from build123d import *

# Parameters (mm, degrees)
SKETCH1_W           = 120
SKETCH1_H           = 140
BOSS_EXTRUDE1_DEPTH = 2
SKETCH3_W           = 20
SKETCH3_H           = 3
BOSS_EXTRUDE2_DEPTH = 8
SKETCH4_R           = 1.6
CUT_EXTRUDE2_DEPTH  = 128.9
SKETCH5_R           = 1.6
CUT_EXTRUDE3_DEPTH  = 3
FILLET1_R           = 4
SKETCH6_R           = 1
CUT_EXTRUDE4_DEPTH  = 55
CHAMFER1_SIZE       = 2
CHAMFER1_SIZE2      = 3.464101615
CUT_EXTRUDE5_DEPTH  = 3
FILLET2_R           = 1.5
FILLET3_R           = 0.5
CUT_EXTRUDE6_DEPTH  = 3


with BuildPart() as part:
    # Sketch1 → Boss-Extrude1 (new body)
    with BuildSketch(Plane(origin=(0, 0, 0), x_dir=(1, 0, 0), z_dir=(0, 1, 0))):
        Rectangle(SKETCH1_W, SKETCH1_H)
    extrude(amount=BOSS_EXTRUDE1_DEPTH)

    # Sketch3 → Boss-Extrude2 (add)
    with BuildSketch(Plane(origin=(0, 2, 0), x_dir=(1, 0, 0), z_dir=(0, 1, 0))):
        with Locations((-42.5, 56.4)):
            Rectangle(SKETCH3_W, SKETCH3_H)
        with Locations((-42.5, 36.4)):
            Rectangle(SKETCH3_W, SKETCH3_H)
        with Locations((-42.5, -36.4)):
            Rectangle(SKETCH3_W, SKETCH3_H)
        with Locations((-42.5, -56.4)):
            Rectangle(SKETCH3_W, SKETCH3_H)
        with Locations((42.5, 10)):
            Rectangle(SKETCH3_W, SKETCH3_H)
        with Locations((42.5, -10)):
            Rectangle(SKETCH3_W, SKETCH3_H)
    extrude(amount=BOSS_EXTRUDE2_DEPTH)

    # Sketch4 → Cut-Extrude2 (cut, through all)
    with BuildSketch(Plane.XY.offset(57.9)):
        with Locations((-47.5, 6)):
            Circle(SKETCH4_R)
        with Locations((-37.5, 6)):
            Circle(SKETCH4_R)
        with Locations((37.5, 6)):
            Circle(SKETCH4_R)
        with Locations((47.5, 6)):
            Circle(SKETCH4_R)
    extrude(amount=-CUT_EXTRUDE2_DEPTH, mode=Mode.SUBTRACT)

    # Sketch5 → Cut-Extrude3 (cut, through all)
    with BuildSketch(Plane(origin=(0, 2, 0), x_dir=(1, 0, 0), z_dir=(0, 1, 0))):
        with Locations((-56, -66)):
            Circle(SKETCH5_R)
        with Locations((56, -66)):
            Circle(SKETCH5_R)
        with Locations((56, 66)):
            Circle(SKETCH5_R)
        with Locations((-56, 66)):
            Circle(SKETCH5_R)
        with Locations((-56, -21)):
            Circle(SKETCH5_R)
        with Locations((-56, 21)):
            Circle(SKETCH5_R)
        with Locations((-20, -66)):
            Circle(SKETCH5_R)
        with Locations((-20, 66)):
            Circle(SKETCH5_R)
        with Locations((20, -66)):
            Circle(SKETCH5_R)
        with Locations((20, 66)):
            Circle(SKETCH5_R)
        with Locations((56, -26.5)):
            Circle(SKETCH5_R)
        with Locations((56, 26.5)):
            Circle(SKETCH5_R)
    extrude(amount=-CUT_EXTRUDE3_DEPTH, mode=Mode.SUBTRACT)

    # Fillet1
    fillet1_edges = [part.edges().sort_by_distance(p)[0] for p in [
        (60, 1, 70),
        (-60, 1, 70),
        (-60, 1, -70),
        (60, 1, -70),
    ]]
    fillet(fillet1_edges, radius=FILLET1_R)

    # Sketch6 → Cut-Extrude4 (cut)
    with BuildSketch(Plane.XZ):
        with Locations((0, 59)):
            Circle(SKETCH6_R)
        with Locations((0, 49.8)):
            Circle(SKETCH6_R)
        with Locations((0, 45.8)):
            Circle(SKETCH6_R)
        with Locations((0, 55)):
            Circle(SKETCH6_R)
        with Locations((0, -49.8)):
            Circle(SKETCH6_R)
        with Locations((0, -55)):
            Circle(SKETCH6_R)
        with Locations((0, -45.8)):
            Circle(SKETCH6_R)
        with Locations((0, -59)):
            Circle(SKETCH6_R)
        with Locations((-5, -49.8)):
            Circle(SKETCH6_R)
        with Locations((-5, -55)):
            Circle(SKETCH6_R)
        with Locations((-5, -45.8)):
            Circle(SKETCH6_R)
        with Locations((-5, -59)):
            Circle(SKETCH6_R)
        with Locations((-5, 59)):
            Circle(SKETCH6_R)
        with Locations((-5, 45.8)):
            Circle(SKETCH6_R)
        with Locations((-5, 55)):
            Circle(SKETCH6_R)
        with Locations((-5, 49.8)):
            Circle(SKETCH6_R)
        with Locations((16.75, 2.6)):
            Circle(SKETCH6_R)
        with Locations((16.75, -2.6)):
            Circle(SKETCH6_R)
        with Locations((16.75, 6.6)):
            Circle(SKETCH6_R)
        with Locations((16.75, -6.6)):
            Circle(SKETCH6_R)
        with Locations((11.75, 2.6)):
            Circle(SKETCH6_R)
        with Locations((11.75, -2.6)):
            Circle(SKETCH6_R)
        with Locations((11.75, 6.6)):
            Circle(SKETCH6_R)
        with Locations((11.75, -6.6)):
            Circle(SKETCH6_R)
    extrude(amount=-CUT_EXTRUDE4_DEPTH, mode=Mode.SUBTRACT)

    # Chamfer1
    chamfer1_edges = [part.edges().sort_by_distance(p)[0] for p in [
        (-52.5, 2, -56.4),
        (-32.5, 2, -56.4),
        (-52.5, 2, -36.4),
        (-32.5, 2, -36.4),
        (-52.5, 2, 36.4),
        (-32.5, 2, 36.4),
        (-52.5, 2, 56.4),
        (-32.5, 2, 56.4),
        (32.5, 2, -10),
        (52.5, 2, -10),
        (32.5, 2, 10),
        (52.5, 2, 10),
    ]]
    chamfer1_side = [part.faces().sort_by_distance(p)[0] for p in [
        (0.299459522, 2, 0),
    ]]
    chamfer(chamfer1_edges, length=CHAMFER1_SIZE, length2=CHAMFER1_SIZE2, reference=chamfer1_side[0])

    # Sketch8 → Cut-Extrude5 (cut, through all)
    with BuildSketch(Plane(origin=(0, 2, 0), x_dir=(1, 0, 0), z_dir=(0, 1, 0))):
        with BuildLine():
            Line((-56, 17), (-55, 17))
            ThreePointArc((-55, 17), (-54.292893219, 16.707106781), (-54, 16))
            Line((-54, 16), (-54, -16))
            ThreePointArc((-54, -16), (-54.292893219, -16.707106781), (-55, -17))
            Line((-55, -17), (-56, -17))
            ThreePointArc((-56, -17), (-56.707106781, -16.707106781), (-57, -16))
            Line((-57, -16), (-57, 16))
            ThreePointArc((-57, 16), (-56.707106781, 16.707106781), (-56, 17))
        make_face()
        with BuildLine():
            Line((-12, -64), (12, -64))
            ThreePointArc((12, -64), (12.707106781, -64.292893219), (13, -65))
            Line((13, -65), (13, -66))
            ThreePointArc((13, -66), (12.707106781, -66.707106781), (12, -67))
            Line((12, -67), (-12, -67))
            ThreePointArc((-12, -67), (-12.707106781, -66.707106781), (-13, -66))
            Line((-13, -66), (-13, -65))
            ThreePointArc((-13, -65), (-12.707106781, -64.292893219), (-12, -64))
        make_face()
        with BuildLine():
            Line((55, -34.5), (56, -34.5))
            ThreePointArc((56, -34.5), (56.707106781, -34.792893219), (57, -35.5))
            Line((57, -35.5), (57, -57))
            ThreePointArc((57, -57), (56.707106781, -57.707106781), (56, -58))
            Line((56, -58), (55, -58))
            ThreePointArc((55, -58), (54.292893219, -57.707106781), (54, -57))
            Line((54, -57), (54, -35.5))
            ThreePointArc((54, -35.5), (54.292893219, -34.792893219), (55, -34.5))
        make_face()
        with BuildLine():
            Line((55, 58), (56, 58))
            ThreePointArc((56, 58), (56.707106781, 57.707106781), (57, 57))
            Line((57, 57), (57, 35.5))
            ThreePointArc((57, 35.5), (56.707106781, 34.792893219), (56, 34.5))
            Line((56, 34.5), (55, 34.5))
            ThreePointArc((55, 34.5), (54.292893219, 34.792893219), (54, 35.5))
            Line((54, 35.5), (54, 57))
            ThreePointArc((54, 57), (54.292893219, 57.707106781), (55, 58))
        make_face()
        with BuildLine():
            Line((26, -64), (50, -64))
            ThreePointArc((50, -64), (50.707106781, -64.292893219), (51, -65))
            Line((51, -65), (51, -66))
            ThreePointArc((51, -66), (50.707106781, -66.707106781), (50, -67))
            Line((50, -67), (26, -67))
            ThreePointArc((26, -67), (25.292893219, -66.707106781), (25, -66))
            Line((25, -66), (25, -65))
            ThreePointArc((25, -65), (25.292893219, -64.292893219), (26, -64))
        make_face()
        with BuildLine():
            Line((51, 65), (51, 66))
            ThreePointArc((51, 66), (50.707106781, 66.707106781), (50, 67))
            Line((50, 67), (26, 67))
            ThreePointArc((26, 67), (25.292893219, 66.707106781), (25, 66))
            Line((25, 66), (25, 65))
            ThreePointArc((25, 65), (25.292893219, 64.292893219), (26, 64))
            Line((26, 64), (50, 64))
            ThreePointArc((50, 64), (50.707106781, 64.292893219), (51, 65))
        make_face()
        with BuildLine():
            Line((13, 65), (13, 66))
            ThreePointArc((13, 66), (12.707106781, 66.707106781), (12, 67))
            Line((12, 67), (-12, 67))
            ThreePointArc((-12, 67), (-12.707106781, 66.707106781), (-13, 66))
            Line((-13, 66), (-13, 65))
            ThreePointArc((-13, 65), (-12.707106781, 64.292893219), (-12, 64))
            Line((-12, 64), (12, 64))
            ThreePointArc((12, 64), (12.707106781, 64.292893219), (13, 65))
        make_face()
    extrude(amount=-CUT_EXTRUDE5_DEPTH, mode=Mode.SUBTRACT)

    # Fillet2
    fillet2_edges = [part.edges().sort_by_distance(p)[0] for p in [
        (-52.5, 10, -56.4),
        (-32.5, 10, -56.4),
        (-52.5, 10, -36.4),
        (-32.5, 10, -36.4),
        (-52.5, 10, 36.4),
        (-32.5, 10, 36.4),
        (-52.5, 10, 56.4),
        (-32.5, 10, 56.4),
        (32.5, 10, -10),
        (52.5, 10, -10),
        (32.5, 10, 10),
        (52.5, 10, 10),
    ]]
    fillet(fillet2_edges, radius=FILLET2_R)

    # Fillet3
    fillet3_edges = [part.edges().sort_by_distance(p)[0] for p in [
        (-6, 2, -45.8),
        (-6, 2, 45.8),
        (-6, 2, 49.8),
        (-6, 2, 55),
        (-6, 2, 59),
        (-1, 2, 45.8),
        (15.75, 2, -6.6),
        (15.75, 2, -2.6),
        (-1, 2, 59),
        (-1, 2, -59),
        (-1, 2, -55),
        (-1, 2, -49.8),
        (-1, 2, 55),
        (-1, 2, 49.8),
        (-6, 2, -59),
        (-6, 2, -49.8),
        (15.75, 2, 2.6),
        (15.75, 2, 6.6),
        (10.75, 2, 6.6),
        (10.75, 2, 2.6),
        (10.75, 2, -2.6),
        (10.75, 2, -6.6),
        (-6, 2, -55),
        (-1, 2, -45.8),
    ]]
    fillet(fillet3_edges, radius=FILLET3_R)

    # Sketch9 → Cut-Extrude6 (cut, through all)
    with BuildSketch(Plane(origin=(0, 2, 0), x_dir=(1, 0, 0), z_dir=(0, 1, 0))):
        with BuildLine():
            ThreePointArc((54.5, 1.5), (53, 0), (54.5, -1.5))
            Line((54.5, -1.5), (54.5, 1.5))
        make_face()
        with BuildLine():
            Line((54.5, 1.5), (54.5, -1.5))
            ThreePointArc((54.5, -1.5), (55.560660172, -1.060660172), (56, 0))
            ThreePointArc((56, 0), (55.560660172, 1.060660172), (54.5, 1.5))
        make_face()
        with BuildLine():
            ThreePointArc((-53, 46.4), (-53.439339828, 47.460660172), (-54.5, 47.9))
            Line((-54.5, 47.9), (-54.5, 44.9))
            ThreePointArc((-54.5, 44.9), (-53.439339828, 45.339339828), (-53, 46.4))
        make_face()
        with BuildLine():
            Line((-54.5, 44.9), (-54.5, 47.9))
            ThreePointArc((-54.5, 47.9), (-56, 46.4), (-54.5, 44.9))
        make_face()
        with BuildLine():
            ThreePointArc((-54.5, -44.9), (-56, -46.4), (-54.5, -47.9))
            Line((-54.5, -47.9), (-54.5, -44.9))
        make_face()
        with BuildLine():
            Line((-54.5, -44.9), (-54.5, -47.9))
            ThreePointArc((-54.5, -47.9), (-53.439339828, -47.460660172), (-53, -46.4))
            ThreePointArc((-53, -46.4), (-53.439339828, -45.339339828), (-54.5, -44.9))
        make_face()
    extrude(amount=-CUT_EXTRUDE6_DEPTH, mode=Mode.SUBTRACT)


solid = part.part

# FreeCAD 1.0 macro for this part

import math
import FreeCAD as App
import Part
import Sketcher

V = App.Vector


def edges_at(feature, points):
    """Names of the edges that pass closest to the given points."""
    edges = feature.Shape.Edges
    near = lambda p: min(range(len(edges)), key=lambda i: edges[i].distToShape(Part.Vertex(*p))[0])
    return sorted({f"Edge{near(p) + 1}" for p in points})


def add_polygon(sketch, points):
    """Adds a closed chain of lines whose ends are joined by coincident constraints."""
    first, n = sketch.GeometryCount, len(points)
    for a, b in zip(points, points[1:] + points[:1]):
        sketch.addGeometry(Part.LineSegment(App.Vector(*a, 0), App.Vector(*b, 0)), False)
    for i in range(n):
        sketch.addConstraint(Sketcher.Constraint("Coincident", first + i, 2, first + (i + 1) % n, 1))

doc = App.newDocument("Part")
body = doc.addObject("PartDesign::Body", "Body")

# Sketch on XZ plane
sketch1 = doc.addObject("Sketcher::SketchObject", "Sketch")
body.addObject(sketch1)
sketch1.AttachmentSupport = (doc.XZ_Plane, [""])
sketch1.MapMode = "FlatFace"
add_polygon(sketch1, [(-60, -70), (-60, 70), (60, 70), (60, -70)])  # lines 0-3
sketch1.addConstraint([
    Sketcher.Constraint("Vertical", 0),
    Sketcher.Constraint("Horizontal", 1),
    Sketcher.Constraint("Vertical", 2),
    Sketcher.Constraint("Horizontal", 3),
    Sketcher.Constraint("Symmetric", 0, 2, 2, 2, -1, 1),
    Sketcher.Constraint("DistanceX", 1, 1, 1, 2, 120.0),
    Sketcher.Constraint("DistanceY", 0, 1, 0, 2, 140.0),
])
pad1 = doc.addObject("PartDesign::Pad", "Pad")
body.addObject(pad1)
pad1.Profile = sketch1
pad1.Length = 2
pad1.Reversed = True

# Sketch on XZ plane
sketch2 = doc.addObject("Sketcher::SketchObject", "Sketch001")
body.addObject(sketch2)
sketch2.AttachmentSupport = (doc.XZ_Plane, [""])
sketch2.MapMode = "FlatFace"
sketch2.AttachmentOffset = App.Placement(V(0, 0, -2), App.Rotation())
add_polygon(sketch2, [(-52.5, -57.9), (-52.5, -54.9), (-32.5, -54.9), (-32.5, -57.9)])  # lines 0-3
add_polygon(sketch2, [(-52.5, -37.9), (-52.5, -34.9), (-32.5, -34.9), (-32.5, -37.9)])  # lines 4-7
add_polygon(sketch2, [(-52.5, 34.9), (-52.5, 37.9), (-32.5, 37.9), (-32.5, 34.9)])  # lines 8-11
add_polygon(sketch2, [(-52.5, 54.9), (-52.5, 57.9), (-32.5, 57.9), (-32.5, 54.9)])  # lines 12-15
add_polygon(sketch2, [(32.5, -11.5), (32.5, -8.5), (52.5, -8.5), (52.5, -11.5)])  # lines 16-19
add_polygon(sketch2, [(32.5, 8.5), (32.5, 11.5), (52.5, 11.5), (52.5, 8.5)])  # lines 20-23
sketch2.addConstraint([
    Sketcher.Constraint("Vertical", 0),
    Sketcher.Constraint("Horizontal", 1),
    Sketcher.Constraint("Vertical", 2),
    Sketcher.Constraint("Horizontal", 3),
    Sketcher.Constraint("Vertical", 4),
    Sketcher.Constraint("Horizontal", 5),
    Sketcher.Constraint("Vertical", 6),
    Sketcher.Constraint("Horizontal", 7),
    Sketcher.Constraint("Vertical", 8),
    Sketcher.Constraint("Horizontal", 9),
    Sketcher.Constraint("Vertical", 10),
    Sketcher.Constraint("Horizontal", 11),
    Sketcher.Constraint("Vertical", 12),
    Sketcher.Constraint("Horizontal", 13),
    Sketcher.Constraint("Vertical", 14),
    Sketcher.Constraint("Horizontal", 15),
    Sketcher.Constraint("Vertical", 16),
    Sketcher.Constraint("Horizontal", 17),
    Sketcher.Constraint("Vertical", 18),
    Sketcher.Constraint("Horizontal", 19),
    Sketcher.Constraint("Vertical", 20),
    Sketcher.Constraint("Horizontal", 21),
    Sketcher.Constraint("Vertical", 22),
    Sketcher.Constraint("Horizontal", 23),
    Sketcher.Constraint("Symmetric", 7, 2, 8, 2, -1),
    Sketcher.Constraint("Symmetric", 5, 2, 10, 2, -1),
    Sketcher.Constraint("Symmetric", 3, 2, 12, 2, -1),
    Sketcher.Constraint("Symmetric", 1, 2, 14, 2, -1),
    Sketcher.Constraint("Symmetric", 19, 2, 20, 2, -1),
    Sketcher.Constraint("Symmetric", 17, 2, 22, 2, -1),
    Sketcher.Constraint("Vertical", 3, 2, 4, 2),
    Sketcher.Constraint("Vertical", 2, 2, 5, 2),
    Sketcher.Constraint("Equal", 15, 17),
    Sketcher.Constraint("Equal", 2, 4),
    Sketcher.Constraint("Equal", 14, 16),
    Sketcher.Constraint("DistanceX", 1, 1, 1, 2, 20.0),
    Sketcher.Constraint("DistanceY", 0, 1, 0, 2, 3.0),
    Sketcher.Constraint("DistanceY", 0, 2, 4, 2, 20.0),
    Sketcher.Constraint("DistanceX", 5, 2, 16, 2, 65.0),
    Sketcher.Constraint("DistanceY", 16, 2, 20, 2, 20.0),
    Sketcher.Constraint("DistanceX", 0, 2, -1, 1, 52.5),
    Sketcher.Constraint("DistanceY", 0, 2, -1, 1, 54.9),
])
pad2 = doc.addObject("PartDesign::Pad", "Pad001")
body.addObject(pad2)
pad2.Profile = sketch2
pad2.Length = 8
pad2.Reversed = True

# Sketch on XY plane
sketch3 = doc.addObject("Sketcher::SketchObject", "Sketch002")
body.addObject(sketch3)
sketch3.AttachmentSupport = (doc.XY_Plane, [""])
sketch3.MapMode = "FlatFace"
sketch3.AttachmentOffset = App.Placement(V(0, 0, 57.9), App.Rotation())
sketch3.addGeometry([
    Part.Circle(V(-47.5, 6, 0), V(0, 0, 1), 1.6),
    Part.Circle(V(-37.5, 6, 0), V(0, 0, 1), 1.6),
    Part.Circle(V(37.5, 6, 0), V(0, 0, 1), 1.6),
    Part.Circle(V(47.5, 6, 0), V(0, 0, 1), 1.6),
], False)
sketch3.addConstraint([
    Sketcher.Constraint("Equal", 0, 1),
    Sketcher.Constraint("Equal", 1, 2),
    Sketcher.Constraint("Equal", 2, 3),
    Sketcher.Constraint("Symmetric", 1, 3, 2, 3, -2),
    Sketcher.Constraint("Symmetric", 0, 3, 3, 3, -2),
    Sketcher.Constraint("Horizontal", 0, 3, 1, 3),
    Sketcher.Constraint("Diameter", 0, 3.2),
    Sketcher.Constraint("DistanceY", -1, 1, 0, 3, 6.0),
    Sketcher.Constraint("DistanceX", 0, 3, 1, 3, 10.0),
    Sketcher.Constraint("DistanceX", 1, 3, 2, 3, 75.0),
])
pocket1 = doc.addObject("PartDesign::Pocket", "Pocket")
body.addObject(pocket1)
pocket1.Profile = sketch3
pocket1.Type = "ThroughAll"

# Sketch on XZ plane
sketch4 = doc.addObject("Sketcher::SketchObject", "Sketch003")
body.addObject(sketch4)
sketch4.AttachmentSupport = (doc.XZ_Plane, [""])
sketch4.MapMode = "FlatFace"
sketch4.AttachmentOffset = App.Placement(V(0, 0, -2), App.Rotation())
sketch4.addGeometry([
    Part.Circle(V(-56, 66, 0), V(0, 0, 1), 1.6),  # 0
    Part.Circle(V(56, 66, 0), V(0, 0, 1), 1.6),  # 1
    Part.Circle(V(56, -66, 0), V(0, 0, 1), 1.6),  # 2
    Part.Circle(V(-56, -66, 0), V(0, 0, 1), 1.6),  # 3
    Part.Circle(V(-56, 21, 0), V(0, 0, 1), 1.6),  # 4
    Part.Circle(V(-56, -21, 0), V(0, 0, 1), 1.6),  # 5
    Part.Circle(V(-20, 66, 0), V(0, 0, 1), 1.6),  # 6
    Part.Circle(V(-20, -66, 0), V(0, 0, 1), 1.6),  # 7
    Part.Circle(V(20, 66, 0), V(0, 0, 1), 1.6),  # 8
    Part.Circle(V(20, -66, 0), V(0, 0, 1), 1.6),  # 9
    Part.Circle(V(56, 26.5, 0), V(0, 0, 1), 1.6),  # 10
    Part.Circle(V(56, -26.5, 0), V(0, 0, 1), 1.6),  # 11
], False)
sketch4.addConstraint([
    Sketcher.Constraint("Equal", 0, 1),
    Sketcher.Constraint("Equal", 1, 2),
    Sketcher.Constraint("Equal", 2, 3),
    Sketcher.Constraint("Equal", 3, 4),
    Sketcher.Constraint("Equal", 4, 5),
    Sketcher.Constraint("Equal", 5, 6),
    Sketcher.Constraint("Equal", 6, 7),
    Sketcher.Constraint("Equal", 7, 8),
    Sketcher.Constraint("Equal", 8, 9),
    Sketcher.Constraint("Equal", 9, 10),
    Sketcher.Constraint("Equal", 10, 11),
    Sketcher.Constraint("Symmetric", 0, 3, 2, 3, -1, 1),
    Sketcher.Constraint("Symmetric", 1, 3, 3, 3, -1, 1),
    Sketcher.Constraint("Symmetric", 7, 3, 8, 3, -1, 1),
    Sketcher.Constraint("Symmetric", 6, 3, 9, 3, -1, 1),
    Sketcher.Constraint("Symmetric", 0, 3, 1, 3, -2),
    Sketcher.Constraint("Symmetric", 6, 3, 8, 3, -2),
    Sketcher.Constraint("Symmetric", 4, 3, 5, 3, -1),
    Sketcher.Constraint("Symmetric", 10, 3, 11, 3, -1),
    Sketcher.Constraint("Horizontal", 1, 3, 6, 3),
    Sketcher.Constraint("Vertical", 3, 3, 4, 3),
    Sketcher.Constraint("Vertical", 2, 3, 10, 3),
    Sketcher.Constraint("Diameter", 0, 3.2),
    Sketcher.Constraint("DistanceX", 0, 3, -1, 1, 56.0),
    Sketcher.Constraint("DistanceY", -1, 1, 0, 3, 66.0),
    Sketcher.Constraint("DistanceY", -1, 1, 4, 3, 21.0),
    Sketcher.Constraint("DistanceX", 6, 3, -1, 1, 20.0),
    Sketcher.Constraint("DistanceY", 11, 3, 10, 3, 53.0),
])
pocket2 = doc.addObject("PartDesign::Pocket", "Pocket001")
body.addObject(pocket2)
pocket2.Profile = sketch4
pocket2.Type = "ThroughAll"
pocket2.Reversed = True
doc.recompute()

fillet = doc.addObject("PartDesign::Fillet", "Fillet")
body.addObject(fillet)
fillet.Base = (pocket2, edges_at(pocket2, [
    (60, 1, 70),
    (-60, 1, 70),
    (-60, 1, -70),
    (60, 1, -70),
]))
fillet.Radius = 4

# Sketch on XZ plane
sketch5 = doc.addObject("Sketcher::SketchObject", "Sketch004")
body.addObject(sketch5)
sketch5.AttachmentSupport = (doc.XZ_Plane, [""])
sketch5.MapMode = "FlatFace"
sketch5.addGeometry([
    Part.Circle(V(0, 59, 0), V(0, 0, 1), 1),  # 0
    Part.Circle(V(0, 49.8, 0), V(0, 0, 1), 1),  # 1
    Part.Circle(V(0, 45.8, 0), V(0, 0, 1), 1),  # 2
    Part.Circle(V(0, 55, 0), V(0, 0, 1), 1),  # 3
    Part.Circle(V(0, -49.8, 0), V(0, 0, 1), 1),  # 4
    Part.Circle(V(0, -55, 0), V(0, 0, 1), 1),  # 5
    Part.Circle(V(0, -45.8, 0), V(0, 0, 1), 1),  # 6
    Part.Circle(V(0, -59, 0), V(0, 0, 1), 1),  # 7
    Part.Circle(V(-5, -49.8, 0), V(0, 0, 1), 1),  # 8
    Part.Circle(V(-5, -55, 0), V(0, 0, 1), 1),  # 9
    Part.Circle(V(-5, -45.8, 0), V(0, 0, 1), 1),  # 10
    Part.Circle(V(-5, -59, 0), V(0, 0, 1), 1),  # 11
    Part.Circle(V(-5, 59, 0), V(0, 0, 1), 1),  # 12
    Part.Circle(V(-5, 45.8, 0), V(0, 0, 1), 1),  # 13
    Part.Circle(V(-5, 55, 0), V(0, 0, 1), 1),  # 14
    Part.Circle(V(-5, 49.8, 0), V(0, 0, 1), 1),  # 15
    Part.Circle(V(16.75, 2.6, 0), V(0, 0, 1), 1),  # 16
    Part.Circle(V(16.75, -2.6, 0), V(0, 0, 1), 1),  # 17
    Part.Circle(V(16.75, 6.6, 0), V(0, 0, 1), 1),  # 18
    Part.Circle(V(16.75, -6.6, 0), V(0, 0, 1), 1),  # 19
    Part.Circle(V(11.75, 2.6, 0), V(0, 0, 1), 1),  # 20
    Part.Circle(V(11.75, -2.6, 0), V(0, 0, 1), 1),  # 21
    Part.Circle(V(11.75, 6.6, 0), V(0, 0, 1), 1),  # 22
    Part.Circle(V(11.75, -6.6, 0), V(0, 0, 1), 1),  # 23
], False)
sketch5.addConstraint([
    Sketcher.Constraint("Equal", 0, 1),
    Sketcher.Constraint("Equal", 1, 2),
    Sketcher.Constraint("Equal", 2, 3),
    Sketcher.Constraint("Equal", 3, 4),
    Sketcher.Constraint("Equal", 4, 5),
    Sketcher.Constraint("Equal", 5, 6),
    Sketcher.Constraint("Equal", 6, 7),
    Sketcher.Constraint("Equal", 7, 8),
    Sketcher.Constraint("Equal", 8, 9),
    Sketcher.Constraint("Equal", 9, 10),
    Sketcher.Constraint("Equal", 10, 11),
    Sketcher.Constraint("Equal", 11, 12),
    Sketcher.Constraint("Equal", 12, 13),
    Sketcher.Constraint("Equal", 13, 14),
    Sketcher.Constraint("Equal", 14, 15),
    Sketcher.Constraint("Equal", 15, 16),
    Sketcher.Constraint("Equal", 16, 17),
    Sketcher.Constraint("Equal", 17, 18),
    Sketcher.Constraint("Equal", 18, 19),
    Sketcher.Constraint("Equal", 19, 20),
    Sketcher.Constraint("Equal", 20, 21),
    Sketcher.Constraint("Equal", 21, 22),
    Sketcher.Constraint("Equal", 22, 23),
    Sketcher.Constraint("Symmetric", 1, 3, 4, 3, -1, 1),
    Sketcher.Constraint("Symmetric", 3, 3, 5, 3, -1, 1),
    Sketcher.Constraint("Symmetric", 2, 3, 6, 3, -1, 1),
    Sketcher.Constraint("Symmetric", 0, 3, 7, 3, -1, 1),
    Sketcher.Constraint("Symmetric", 11, 3, 12, 3, -1),
    Sketcher.Constraint("Symmetric", 10, 3, 13, 3, -1),
    Sketcher.Constraint("Symmetric", 9, 3, 14, 3, -1),
    Sketcher.Constraint("Symmetric", 8, 3, 15, 3, -1),
    Sketcher.Constraint("Symmetric", 16, 3, 17, 3, -1),
    Sketcher.Constraint("Symmetric", 18, 3, 19, 3, -1),
    Sketcher.Constraint("Symmetric", 20, 3, 21, 3, -1),
    Sketcher.Constraint("Symmetric", 22, 3, 23, 3, -1),
    Sketcher.Constraint("PointOnObject", 0, 3, -2),
    Sketcher.Constraint("PointOnObject", 1, 3, -2),
    Sketcher.Constraint("PointOnObject", 2, 3, -2),
    Sketcher.Constraint("PointOnObject", 3, 3, -2),
    Sketcher.Constraint("Horizontal", 4, 3, 8, 3),
    Sketcher.Constraint("Horizontal", 5, 3, 9, 3),
    Sketcher.Constraint("Horizontal", 6, 3, 10, 3),
    Sketcher.Constraint("Horizontal", 7, 3, 11, 3),
    Sketcher.Constraint("Horizontal", 16, 3, 20, 3),
    Sketcher.Constraint("Horizontal", 18, 3, 22, 3),
    Sketcher.Constraint("Vertical", 8, 3, 9, 3),
    Sketcher.Constraint("Vertical", 9, 3, 10, 3),
    Sketcher.Constraint("Vertical", 10, 3, 11, 3),
    Sketcher.Constraint("Vertical", 17, 3, 18, 3),
    Sketcher.Constraint("Vertical", 21, 3, 22, 3),
    Sketcher.Constraint("Diameter", 0, 2.0),
    Sketcher.Constraint("DistanceY", -1, 1, 0, 3, 59.0),
    Sketcher.Constraint("DistanceY", -1, 1, 3, 3, 55.0),
    Sketcher.Constraint("DistanceX", 8, 3, -1, 1, 5.0),
    Sketcher.Constraint("DistanceY", 2, 3, 1, 3, 4.0),
    Sketcher.Constraint("DistanceY", 16, 3, 18, 3, 4.0),
    Sketcher.Constraint("DistanceX", 20, 3, 16, 3, 5.0),
    Sketcher.Constraint("DistanceY", -1, 1, 1, 3, 49.8),
    Sketcher.Constraint("DistanceY", -1, 1, 16, 3, 2.6),
    Sketcher.Constraint("DistanceX", -1, 1, 16, 3, 16.75),
])
pocket3 = doc.addObject("PartDesign::Pocket", "Pocket002")
body.addObject(pocket3)
pocket3.Profile = sketch5
pocket3.Length = 55
doc.recompute()

chamfer = doc.addObject("PartDesign::Chamfer", "Chamfer")
body.addObject(chamfer)
chamfer.Base = (pocket3, edges_at(pocket3, [
    (-52.5, 2, -56.4),
    (-32.5, 2, -56.4),
    (-52.5, 2, -36.4),
    (-32.5, 2, -36.4),
    (-52.5, 2, 36.4),
    (-32.5, 2, 36.4),
    (-52.5, 2, 56.4),
    (-32.5, 2, 56.4),
    (32.5, 2, -10),
    (52.5, 2, -10),
    (32.5, 2, 10),
    (52.5, 2, 10),
]))
chamfer.ChamferType = "Two distances"
chamfer.Size = 2
chamfer.Size2 = 3.464102

# Sketch on XZ plane
sketch6 = doc.addObject("Sketcher::SketchObject", "Sketch005")
body.addObject(sketch6)
sketch6.AttachmentSupport = (doc.XZ_Plane, [""])
sketch6.MapMode = "FlatFace"
sketch6.AttachmentOffset = App.Placement(V(0, 0, -2), App.Rotation())
sketch6.addGeometry([
    Part.LineSegment(V(-55, -17, 0), V(-56, -17, 0)),  # 0
    Part.ArcOfCircle(Part.Circle(V(-56, -16, 0), V(0, 0, 1), 1), math.radians(-180), math.radians(-90)),  # 1
    Part.LineSegment(V(-57, -16, 0), V(-57, 16, 0)),  # 2
    Part.ArcOfCircle(Part.Circle(V(-56, 16, 0), V(0, 0, 1), 1), math.radians(90), math.radians(180)),  # 3
    Part.LineSegment(V(-56, 17, 0), V(-55, 17, 0)),  # 4
    Part.ArcOfCircle(Part.Circle(V(-55, 16, 0), V(0, 0, 1), 1), math.radians(0), math.radians(90)),  # 5
    Part.LineSegment(V(-54, 16, 0), V(-54, -16, 0)),  # 6
    Part.ArcOfCircle(Part.Circle(V(-55, -16, 0), V(0, 0, 1), 1), math.radians(-90), math.radians(0)),  # 7
    Part.LineSegment(V(12, 64, 0), V(-12, 64, 0)),  # 8
    Part.ArcOfCircle(Part.Circle(V(-12, 65, 0), V(0, 0, 1), 1), math.radians(-180), math.radians(-90)),  # 9
    Part.LineSegment(V(-13, 65, 0), V(-13, 66, 0)),  # 10
    Part.ArcOfCircle(Part.Circle(V(-12, 66, 0), V(0, 0, 1), 1), math.radians(90), math.radians(180)),  # 11
    Part.LineSegment(V(-12, 67, 0), V(12, 67, 0)),  # 12
    Part.ArcOfCircle(Part.Circle(V(12, 66, 0), V(0, 0, 1), 1), math.radians(0), math.radians(90)),  # 13
    Part.LineSegment(V(13, 66, 0), V(13, 65, 0)),  # 14
    Part.ArcOfCircle(Part.Circle(V(12, 65, 0), V(0, 0, 1), 1), math.radians(-90), math.radians(0)),  # 15
    Part.LineSegment(V(56, 34.5, 0), V(55, 34.5, 0)),  # 16
    Part.ArcOfCircle(Part.Circle(V(55, 35.5, 0), V(0, 0, 1), 1), math.radians(-180), math.radians(-90)),  # 17
    Part.LineSegment(V(54, 35.5, 0), V(54, 57, 0)),  # 18
    Part.ArcOfCircle(Part.Circle(V(55, 57, 0), V(0, 0, 1), 1), math.radians(90), math.radians(180)),  # 19
    Part.LineSegment(V(55, 58, 0), V(56, 58, 0)),  # 20
    Part.ArcOfCircle(Part.Circle(V(56, 57, 0), V(0, 0, 1), 1), math.radians(0), math.radians(90)),  # 21
    Part.LineSegment(V(57, 57, 0), V(57, 35.5, 0)),  # 22
    Part.ArcOfCircle(Part.Circle(V(56, 35.5, 0), V(0, 0, 1), 1), math.radians(-90), math.radians(0)),  # 23
    Part.LineSegment(V(56, -58, 0), V(55, -58, 0)),  # 24
    Part.ArcOfCircle(Part.Circle(V(55, -57, 0), V(0, 0, 1), 1), math.radians(-180), math.radians(-90)),  # 25
    Part.LineSegment(V(54, -57, 0), V(54, -35.5, 0)),  # 26
    Part.ArcOfCircle(Part.Circle(V(55, -35.5, 0), V(0, 0, 1), 1), math.radians(90), math.radians(180)),  # 27
    Part.LineSegment(V(55, -34.5, 0), V(56, -34.5, 0)),  # 28
    Part.ArcOfCircle(Part.Circle(V(56, -35.5, 0), V(0, 0, 1), 1), math.radians(0), math.radians(90)),  # 29
    Part.LineSegment(V(57, -35.5, 0), V(57, -57, 0)),  # 30
    Part.ArcOfCircle(Part.Circle(V(56, -57, 0), V(0, 0, 1), 1), math.radians(-90), math.radians(0)),  # 31
    Part.LineSegment(V(50, 64, 0), V(26, 64, 0)),  # 32
    Part.ArcOfCircle(Part.Circle(V(26, 65, 0), V(0, 0, 1), 1), math.radians(-180), math.radians(-90)),  # 33
    Part.LineSegment(V(25, 65, 0), V(25, 66, 0)),  # 34
    Part.ArcOfCircle(Part.Circle(V(26, 66, 0), V(0, 0, 1), 1), math.radians(90), math.radians(180)),  # 35
    Part.LineSegment(V(26, 67, 0), V(50, 67, 0)),  # 36
    Part.ArcOfCircle(Part.Circle(V(50, 66, 0), V(0, 0, 1), 1), math.radians(0), math.radians(90)),  # 37
    Part.LineSegment(V(51, 66, 0), V(51, 65, 0)),  # 38
    Part.ArcOfCircle(Part.Circle(V(50, 65, 0), V(0, 0, 1), 1), math.radians(-90), math.radians(0)),  # 39
    Part.LineSegment(V(51, -65, 0), V(51, -66, 0)),  # 40
    Part.ArcOfCircle(Part.Circle(V(50, -66, 0), V(0, 0, 1), 1), math.radians(-90), math.radians(0)),  # 41
    Part.LineSegment(V(50, -67, 0), V(26, -67, 0)),  # 42
    Part.ArcOfCircle(Part.Circle(V(26, -66, 0), V(0, 0, 1), 1), math.radians(-180), math.radians(-90)),  # 43
    Part.LineSegment(V(25, -66, 0), V(25, -65, 0)),  # 44
    Part.ArcOfCircle(Part.Circle(V(26, -65, 0), V(0, 0, 1), 1), math.radians(90), math.radians(180)),  # 45
    Part.LineSegment(V(26, -64, 0), V(50, -64, 0)),  # 46
    Part.ArcOfCircle(Part.Circle(V(50, -65, 0), V(0, 0, 1), 1), math.radians(0), math.radians(90)),  # 47
    Part.LineSegment(V(13, -65, 0), V(13, -66, 0)),  # 48
    Part.ArcOfCircle(Part.Circle(V(12, -66, 0), V(0, 0, 1), 1), math.radians(-90), math.radians(0)),  # 49
    Part.LineSegment(V(12, -67, 0), V(-12, -67, 0)),  # 50
    Part.ArcOfCircle(Part.Circle(V(-12, -66, 0), V(0, 0, 1), 1), math.radians(-180), math.radians(-90)),  # 51
    Part.LineSegment(V(-13, -66, 0), V(-13, -65, 0)),  # 52
    Part.ArcOfCircle(Part.Circle(V(-12, -65, 0), V(0, 0, 1), 1), math.radians(90), math.radians(180)),  # 53
    Part.LineSegment(V(-12, -64, 0), V(12, -64, 0)),  # 54
    Part.ArcOfCircle(Part.Circle(V(12, -65, 0), V(0, 0, 1), 1), math.radians(0), math.radians(90)),  # 55
], False)
sketch6.addConstraint([
    Sketcher.Constraint("Tangent", 0, 2, 1, 2),
    Sketcher.Constraint("Tangent", 1, 1, 2, 1),
    Sketcher.Constraint("Tangent", 2, 2, 3, 2),
    Sketcher.Constraint("Tangent", 3, 1, 4, 1),
    Sketcher.Constraint("Tangent", 4, 2, 5, 2),
    Sketcher.Constraint("Tangent", 5, 1, 6, 1),
    Sketcher.Constraint("Tangent", 6, 2, 7, 2),
    Sketcher.Constraint("Tangent", 7, 1, 0, 1),
    Sketcher.Constraint("Tangent", 8, 2, 9, 2),
    Sketcher.Constraint("Tangent", 9, 1, 10, 1),
    Sketcher.Constraint("Tangent", 10, 2, 11, 2),
    Sketcher.Constraint("Tangent", 11, 1, 12, 1),
    Sketcher.Constraint("Tangent", 12, 2, 13, 2),
    Sketcher.Constraint("Tangent", 13, 1, 14, 1),
    Sketcher.Constraint("Tangent", 14, 2, 15, 2),
    Sketcher.Constraint("Tangent", 15, 1, 8, 1),
    Sketcher.Constraint("Tangent", 16, 2, 17, 2),
    Sketcher.Constraint("Tangent", 17, 1, 18, 1),
    Sketcher.Constraint("Tangent", 18, 2, 19, 2),
    Sketcher.Constraint("Tangent", 19, 1, 20, 1),
    Sketcher.Constraint("Tangent", 20, 2, 21, 2),
    Sketcher.Constraint("Tangent", 21, 1, 22, 1),
    Sketcher.Constraint("Tangent", 22, 2, 23, 2),
    Sketcher.Constraint("Tangent", 23, 1, 16, 1),
    Sketcher.Constraint("Tangent", 24, 2, 25, 2),
    Sketcher.Constraint("Tangent", 25, 1, 26, 1),
    Sketcher.Constraint("Tangent", 26, 2, 27, 2),
    Sketcher.Constraint("Tangent", 27, 1, 28, 1),
    Sketcher.Constraint("Tangent", 28, 2, 29, 2),
    Sketcher.Constraint("Tangent", 29, 1, 30, 1),
    Sketcher.Constraint("Tangent", 30, 2, 31, 2),
    Sketcher.Constraint("Tangent", 31, 1, 24, 1),
    Sketcher.Constraint("Tangent", 32, 2, 33, 2),
    Sketcher.Constraint("Tangent", 33, 1, 34, 1),
    Sketcher.Constraint("Tangent", 34, 2, 35, 2),
    Sketcher.Constraint("Tangent", 35, 1, 36, 1),
    Sketcher.Constraint("Tangent", 36, 2, 37, 2),
    Sketcher.Constraint("Tangent", 37, 1, 38, 1),
    Sketcher.Constraint("Tangent", 38, 2, 39, 2),
    Sketcher.Constraint("Tangent", 39, 1, 32, 1),
    Sketcher.Constraint("Tangent", 40, 2, 41, 2),
    Sketcher.Constraint("Tangent", 41, 1, 42, 1),
    Sketcher.Constraint("Tangent", 42, 2, 43, 2),
    Sketcher.Constraint("Tangent", 43, 1, 44, 1),
    Sketcher.Constraint("Tangent", 44, 2, 45, 2),
    Sketcher.Constraint("Tangent", 45, 1, 46, 1),
    Sketcher.Constraint("Tangent", 46, 2, 47, 2),
    Sketcher.Constraint("Tangent", 47, 1, 40, 1),
    Sketcher.Constraint("Tangent", 48, 2, 49, 2),
    Sketcher.Constraint("Tangent", 49, 1, 50, 1),
    Sketcher.Constraint("Tangent", 50, 2, 51, 2),
    Sketcher.Constraint("Tangent", 51, 1, 52, 1),
    Sketcher.Constraint("Tangent", 52, 2, 53, 2),
    Sketcher.Constraint("Tangent", 53, 1, 54, 1),
    Sketcher.Constraint("Tangent", 54, 2, 55, 2),
    Sketcher.Constraint("Tangent", 55, 1, 48, 1),
    Sketcher.Constraint("Horizontal", 0),
    Sketcher.Constraint("Vertical", 2),
    Sketcher.Constraint("Horizontal", 4),
    Sketcher.Constraint("Vertical", 6),
    Sketcher.Constraint("Horizontal", 8),
    Sketcher.Constraint("Vertical", 10),
    Sketcher.Constraint("Horizontal", 12),
    Sketcher.Constraint("Vertical", 14),
    Sketcher.Constraint("Horizontal", 16),
    Sketcher.Constraint("Vertical", 18),
    Sketcher.Constraint("Horizontal", 20),
    Sketcher.Constraint("Vertical", 22),
    Sketcher.Constraint("Horizontal", 24),
    Sketcher.Constraint("Vertical", 26),
    Sketcher.Constraint("Horizontal", 28),
    Sketcher.Constraint("Vertical", 30),
    Sketcher.Constraint("Horizontal", 32),
    Sketcher.Constraint("Vertical", 34),
    Sketcher.Constraint("Horizontal", 36),
    Sketcher.Constraint("Vertical", 38),
    Sketcher.Constraint("Vertical", 40),
    Sketcher.Constraint("Horizontal", 42),
    Sketcher.Constraint("Vertical", 44),
    Sketcher.Constraint("Horizontal", 46),
    Sketcher.Constraint("Vertical", 48),
    Sketcher.Constraint("Horizontal", 50),
    Sketcher.Constraint("Vertical", 52),
    Sketcher.Constraint("Horizontal", 54),
    Sketcher.Constraint("Equal", 1, 3),
    Sketcher.Constraint("Equal", 3, 5),
    Sketcher.Constraint("Equal", 5, 7),
    Sketcher.Constraint("Equal", 7, 9),
    Sketcher.Constraint("Equal", 9, 11),
    Sketcher.Constraint("Equal", 11, 13),
    Sketcher.Constraint("Equal", 13, 15),
    Sketcher.Constraint("Equal", 15, 17),
    Sketcher.Constraint("Equal", 17, 19),
    Sketcher.Constraint("Equal", 19, 21),
    Sketcher.Constraint("Equal", 21, 23),
    Sketcher.Constraint("Equal", 23, 25),
    Sketcher.Constraint("Equal", 25, 27),
    Sketcher.Constraint("Equal", 27, 29),
    Sketcher.Constraint("Equal", 29, 31),
    Sketcher.Constraint("Equal", 31, 33),
    Sketcher.Constraint("Equal", 33, 35),
    Sketcher.Constraint("Equal", 35, 37),
    Sketcher.Constraint("Equal", 37, 39),
    Sketcher.Constraint("Equal", 39, 41),
    Sketcher.Constraint("Equal", 41, 43),
    Sketcher.Constraint("Equal", 43, 45),
    Sketcher.Constraint("Equal", 45, 47),
    Sketcher.Constraint("Equal", 47, 49),
    Sketcher.Constraint("Equal", 49, 51),
    Sketcher.Constraint("Equal", 51, 53),
    Sketcher.Constraint("Equal", 53, 55),
    Sketcher.Constraint("Symmetric", 11, 3, 49, 3, -1, 1),
    Sketcher.Constraint("Symmetric", 15, 3, 53, 3, -1, 1),
    Sketcher.Constraint("Symmetric", 19, 3, 25, 3, -1),
    Sketcher.Constraint("Symmetric", 23, 3, 29, 3, -1),
    Sketcher.Constraint("Symmetric", 37, 3, 41, 3, -1),
    Sketcher.Constraint("Symmetric", 33, 3, 45, 3, -1),
    Sketcher.Constraint("Horizontal", 15, 3, 33, 3),
    Sketcher.Constraint("Horizontal", 13, 3, 35, 3),
    Sketcher.Constraint("Vertical", 15, 3, 49, 3),
    Sketcher.Constraint("Equal", 4, 16),
    Sketcher.Constraint("Equal", 12, 32),
    Sketcher.Constraint("Equal", 28, 10),
    Sketcher.Constraint("Radius", 1, 1.0),
    Sketcher.Constraint("DistanceX", 0, 2, 0, 1, 1.0),
    Sketcher.Constraint("DistanceX", 8, 2, 8, 1, 24.0),
    Sketcher.Constraint("DistanceY", 2, 1, 2, 2, 32.0),
    Sketcher.Constraint("DistanceY", 18, 1, 18, 2, 21.5),
    Sketcher.Constraint("DistanceX", 1, 3, -1, 1, 56.0),
    Sketcher.Constraint("DistanceY", 1, 3, -1, 1, 16.0),
    Sketcher.Constraint("DistanceY", -1, 1, 9, 3, 65.0),
    Sketcher.Constraint("DistanceX", -1, 1, 17, 3, 55.0),
    Sketcher.Constraint("DistanceY", -1, 1, 19, 3, 57.0),
    Sketcher.Constraint("DistanceX", -1, 1, 33, 3, 26.0),
])
pocket4 = doc.addObject("PartDesign::Pocket", "Pocket003")
body.addObject(pocket4)
pocket4.Profile = sketch6
pocket4.Type = "ThroughAll"
pocket4.Reversed = True
doc.recompute()

fillet2 = doc.addObject("PartDesign::Fillet", "Fillet001")
body.addObject(fillet2)
fillet2.Base = (pocket4, edges_at(pocket4, [
    (-52.5, 10, -56.4),
    (-32.5, 10, -56.4),
    (-52.5, 10, -36.4),
    (-32.5, 10, -36.4),
    (-52.5, 10, 36.4),
    (-32.5, 10, 36.4),
    (-52.5, 10, 56.4),
    (-32.5, 10, 56.4),
    (32.5, 10, -10),
    (52.5, 10, -10),
    (32.5, 10, 10),
    (52.5, 10, 10),
]))
fillet2.Radius = 1.5
doc.recompute()

fillet3 = doc.addObject("PartDesign::Fillet", "Fillet002")
body.addObject(fillet3)
fillet3.Base = (fillet2, edges_at(fillet2, [
    (-6, 2, -45.8),
    (-6, 2, 45.8),
    (-6, 2, 49.8),
    (-6, 2, 55),
    (-6, 2, 59),
    (-1, 2, 45.8),
    (15.75, 2, -6.6),
    (15.75, 2, -2.6),
    (-1, 2, 59),
    (-1, 2, -59),
    (-1, 2, -55),
    (-1, 2, -49.8),
    (-1, 2, 55),
    (-1, 2, 49.8),
    (-6, 2, -59),
    (-6, 2, -49.8),
    (15.75, 2, 2.6),
    (15.75, 2, 6.6),
    (10.75, 2, 6.6),
    (10.75, 2, 2.6),
    (10.75, 2, -2.6),
    (10.75, 2, -6.6),
    (-6, 2, -55),
    (-1, 2, -45.8),
]))
fillet3.Radius = 0.5

# Sketch on XZ plane
sketch7 = doc.addObject("Sketcher::SketchObject", "Sketch006")
body.addObject(sketch7)
sketch7.AttachmentSupport = (doc.XZ_Plane, [""])
sketch7.MapMode = "FlatFace"
sketch7.AttachmentOffset = App.Placement(V(0, 0, -2), App.Rotation())
sketch7.addGeometry([
    Part.ArcOfCircle(Part.Circle(V(54.5, 0, 0), V(0, 0, 1), 1.5), math.radians(90), math.radians(270)),  # 0
    Part.ArcOfCircle(Part.Circle(V(54.5, 0, 0), V(0, 0, 1), 1.5), math.radians(0), math.radians(90)),  # 1
    Part.ArcOfCircle(Part.Circle(V(54.5, 0, 0), V(0, 0, 1), 1.5), math.radians(-90), math.radians(0)),  # 2
    Part.ArcOfCircle(Part.Circle(V(-54.5, -46.4, 0), V(0, 0, 1), 1.5), math.radians(-90), math.radians(0)),  # 3
    Part.ArcOfCircle(Part.Circle(V(-54.5, -46.4, 0), V(0, 0, 1), 1.5), math.radians(90), math.radians(270)),  # 4
    Part.ArcOfCircle(Part.Circle(V(-54.5, -46.4, 0), V(0, 0, 1), 1.5), math.radians(0), math.radians(90)),  # 5
    Part.ArcOfCircle(Part.Circle(V(-54.5, 46.4, 0), V(0, 0, 1), 1.5), math.radians(90), math.radians(270)),  # 6
    Part.ArcOfCircle(Part.Circle(V(-54.5, 46.4, 0), V(0, 0, 1), 1.5), math.radians(0), math.radians(90)),  # 7
    Part.ArcOfCircle(Part.Circle(V(-54.5, 46.4, 0), V(0, 0, 1), 1.5), math.radians(-90), math.radians(0)),  # 8
], False)
sketch7.addConstraint([
    Sketcher.Constraint("Tangent", 0, 1, 1, 2),
    Sketcher.Constraint("Tangent", 1, 1, 2, 2),
    Sketcher.Constraint("Tangent", 2, 1, 0, 2),
    Sketcher.Constraint("Tangent", 3, 1, 4, 2),
    Sketcher.Constraint("Tangent", 4, 1, 5, 2),
    Sketcher.Constraint("Tangent", 5, 1, 3, 2),
    Sketcher.Constraint("Tangent", 6, 1, 7, 2),
    Sketcher.Constraint("Tangent", 7, 1, 8, 2),
    Sketcher.Constraint("Tangent", 8, 1, 6, 2),
    Sketcher.Constraint("Equal", 2, 3),
    Sketcher.Constraint("Equal", 5, 6),
    Sketcher.Constraint("Symmetric", 3, 3, 6, 3, -1),
    Sketcher.Constraint("Symmetric", 0, 1, 2, 1, -1),
    Sketcher.Constraint("PointOnObject", 1, 1, -1),
    Sketcher.Constraint("Horizontal", 4, 3, 5, 1),
    Sketcher.Constraint("Horizontal", 8, 3, 7, 1),
    Sketcher.Constraint("Vertical", 2, 3, 0, 1),
    Sketcher.Constraint("Vertical", 8, 3, 3, 1),
    Sketcher.Constraint("Vertical", 3, 1, 4, 1),
    Sketcher.Constraint("Vertical", 4, 1, 6, 1),
    Sketcher.Constraint("Vertical", 6, 1, 8, 1),
    Sketcher.Constraint("Radius", 0, 1.5),
    Sketcher.Constraint("DistanceX", -1, 1, 1, 1, 56.0),
    Sketcher.Constraint("DistanceX", 5, 1, -1, 1, 53.0),
    Sketcher.Constraint("DistanceY", 3, 3, -1, 1, 46.4),
])
pocket5 = doc.addObject("PartDesign::Pocket", "Pocket004")
body.addObject(pocket5)
pocket5.Profile = sketch7
pocket5.Type = "ThroughAll"
pocket5.Reversed = True

doc.recompute()
